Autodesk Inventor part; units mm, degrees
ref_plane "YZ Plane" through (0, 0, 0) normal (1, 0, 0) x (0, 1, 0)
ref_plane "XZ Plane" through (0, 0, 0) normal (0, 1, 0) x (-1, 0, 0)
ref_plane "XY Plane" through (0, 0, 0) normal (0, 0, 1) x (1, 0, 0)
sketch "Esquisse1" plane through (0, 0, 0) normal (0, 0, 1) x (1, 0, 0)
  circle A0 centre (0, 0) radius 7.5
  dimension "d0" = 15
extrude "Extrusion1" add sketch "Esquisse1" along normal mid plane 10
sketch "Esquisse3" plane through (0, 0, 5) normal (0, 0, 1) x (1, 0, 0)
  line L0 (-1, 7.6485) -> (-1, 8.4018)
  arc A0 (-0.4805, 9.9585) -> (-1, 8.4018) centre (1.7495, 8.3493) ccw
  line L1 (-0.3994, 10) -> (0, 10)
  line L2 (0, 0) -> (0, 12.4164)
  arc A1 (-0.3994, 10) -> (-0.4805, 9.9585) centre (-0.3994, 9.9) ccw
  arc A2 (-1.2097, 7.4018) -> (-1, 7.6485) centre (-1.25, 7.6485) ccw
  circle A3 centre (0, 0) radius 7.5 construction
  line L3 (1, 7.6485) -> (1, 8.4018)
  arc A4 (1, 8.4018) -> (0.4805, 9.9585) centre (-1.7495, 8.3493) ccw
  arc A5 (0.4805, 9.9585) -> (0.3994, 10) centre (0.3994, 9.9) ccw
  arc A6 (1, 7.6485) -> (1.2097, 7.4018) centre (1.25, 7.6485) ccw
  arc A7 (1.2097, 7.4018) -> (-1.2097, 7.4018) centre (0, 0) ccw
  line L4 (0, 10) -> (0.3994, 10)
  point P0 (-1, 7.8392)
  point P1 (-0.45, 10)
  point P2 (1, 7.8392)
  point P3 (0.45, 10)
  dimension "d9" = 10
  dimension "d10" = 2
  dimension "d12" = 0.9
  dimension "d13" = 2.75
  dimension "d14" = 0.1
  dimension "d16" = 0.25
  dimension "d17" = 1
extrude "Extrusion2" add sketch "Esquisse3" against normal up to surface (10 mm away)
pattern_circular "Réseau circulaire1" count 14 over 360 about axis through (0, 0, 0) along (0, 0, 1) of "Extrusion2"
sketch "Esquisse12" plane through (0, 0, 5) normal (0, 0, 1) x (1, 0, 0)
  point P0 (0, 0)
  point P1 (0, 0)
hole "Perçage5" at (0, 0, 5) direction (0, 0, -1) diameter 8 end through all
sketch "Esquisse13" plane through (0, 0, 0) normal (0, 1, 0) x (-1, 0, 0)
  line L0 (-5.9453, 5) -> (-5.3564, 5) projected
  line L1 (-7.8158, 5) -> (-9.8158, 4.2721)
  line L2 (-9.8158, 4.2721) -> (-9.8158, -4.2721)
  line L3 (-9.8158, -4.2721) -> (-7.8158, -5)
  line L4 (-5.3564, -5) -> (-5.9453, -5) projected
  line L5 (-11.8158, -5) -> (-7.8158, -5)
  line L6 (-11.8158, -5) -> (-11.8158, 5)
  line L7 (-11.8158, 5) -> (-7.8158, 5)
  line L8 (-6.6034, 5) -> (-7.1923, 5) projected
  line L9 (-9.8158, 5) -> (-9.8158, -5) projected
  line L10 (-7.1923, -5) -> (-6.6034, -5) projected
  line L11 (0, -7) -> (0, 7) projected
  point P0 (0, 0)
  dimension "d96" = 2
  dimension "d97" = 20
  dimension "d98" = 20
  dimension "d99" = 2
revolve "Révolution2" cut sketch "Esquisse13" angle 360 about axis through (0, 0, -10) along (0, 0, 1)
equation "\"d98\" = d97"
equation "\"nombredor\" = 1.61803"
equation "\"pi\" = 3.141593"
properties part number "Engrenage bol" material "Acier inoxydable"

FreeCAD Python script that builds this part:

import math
import FreeCAD as App
import Part
import Sketcher
Q = App.Units.Quantity

doc = App.newDocument("Part")
body = doc.addObject("PartDesign::Body", "Body")

# Sketch on XY plane
sketch1 = doc.addObject("Sketcher::SketchObject", "Sketch")
body.addObject(sketch1)
sketch1.AttachmentSupport = (doc.XY_Plane, [""])
sketch1.MapMode = "FlatFace"
sketch1.addGeometry(Part.Circle(App.Vector(0, 0, 0), App.Vector(0, 0, 1), 8), False)
sketch1.addConstraint([
    Sketcher.Constraint("Coincident", 0, 3, -1, 1),
    Sketcher.Constraint("Diameter", 0, Q("15 mm")),
])
pad1 = doc.addObject("PartDesign::Pad", "Pad")
body.addObject(pad1)
pad1.Profile = sketch1
pad1.Length = 10
pad1.Midplane = True

# Sketch on XY plane
sketch2 = doc.addObject("Sketcher::SketchObject", "Sketch001")
body.addObject(sketch2)
sketch2.AttachmentSupport = (doc.XY_Plane, [""])
sketch2.MapMode = "FlatFace"
sketch2.AttachmentOffset = App.Placement(App.Vector(0, 0, 5), App.Rotation())
sketch2.addGeometry([
    Part.LineSegment(App.Vector(-1, 8.4, 0), App.Vector(-1, 7.65, 0)),  # 0
    Part.ArcOfCircle(Part.Circle(App.Vector(-1.25, 7.65, 0), App.Vector(0, 0, 1), 0.25), math.radians(-81), math.radians(0)),  # 1
    Part.ArcOfCircle(Part.Circle(App.Vector(0, 0, 0), App.Vector(0, 0, 1), 7.5), math.radians(80.72), math.radians(99.28)),  # 2
    Part.ArcOfCircle(Part.Circle(App.Vector(1.25, 7.65, 0), App.Vector(0, 0, 1), 0.25), math.radians(180), math.radians(261)),  # 3
    Part.LineSegment(App.Vector(1, 7.65, 0), App.Vector(1, 8.4, 0)),  # 4
    Part.ArcOfCircle(Part.Circle(App.Vector(-1.75, 8.35, 0), App.Vector(0, 0, 1), 2.75), math.radians(1), math.radians(36)),  # 5
    Part.ArcOfCircle(Part.Circle(App.Vector(0.4, 9.9, 0), App.Vector(0, 0, 1), 0.1), math.radians(36), math.radians(90)),  # 6
    Part.LineSegment(App.Vector(0.4, 10, 0), App.Vector(-0.4, 10, 0)),  # 7
    Part.ArcOfCircle(Part.Circle(App.Vector(-0.4, 9.9, 0), App.Vector(0, 0, 1), 0.1), math.radians(90), math.radians(144)),  # 8
    Part.ArcOfCircle(Part.Circle(App.Vector(1.75, 8.35, 0), App.Vector(0, 0, 1), 2.75), math.radians(144), math.radians(179)),  # 9
], False)
sketch2.addConstraint([
    Sketcher.Constraint("Tangent", 0, 2, 1, 2),
    Sketcher.Constraint("Tangent", 1, 1, 2, 2),
    Sketcher.Constraint("Tangent", 2, 1, 3, 2),
    Sketcher.Constraint("Tangent", 3, 1, 4, 1),
    Sketcher.Constraint("Coincident", 4, 2, 5, 1),
    Sketcher.Constraint("Tangent", 5, 2, 6, 1),
    Sketcher.Constraint("Tangent", 6, 2, 7, 1),
    Sketcher.Constraint("Tangent", 7, 2, 8, 1),
    Sketcher.Constraint("Tangent", 8, 2, 9, 1),
    Sketcher.Constraint("Coincident", 9, 2, 0, 1),
    Sketcher.Constraint("Vertical", 0),
    Sketcher.Constraint("Vertical", 4),
    Sketcher.Constraint("Horizontal", 7),
    Sketcher.Constraint("Coincident", 2, 3, -1, 1),
    Sketcher.Constraint("Equal", 1, 3),
    Sketcher.Constraint("Equal", 6, 8),
    Sketcher.Constraint("Equal", 5, 9),
    Sketcher.Constraint("Symmetric", 5, 3, 9, 3, -2),
    Sketcher.Constraint("Horizontal", 1, 3, 3, 3),
    Sketcher.Constraint("Radius", 6, Q("0.1 mm")),
    Sketcher.Constraint("Radius", 1, Q("0.25 mm")),
    Sketcher.Constraint("Radius", 5, Q("2.75 mm")),
    Sketcher.Constraint("DistanceX", 0, 2, -1, 1, Q("1 mm")),
    Sketcher.Constraint("DistanceY", -1, 1, 6, 2, Q("10 mm")),
    Sketcher.Constraint("DistanceY", 2, 1, 4, 2, Q("1 mm")),
    Sketcher.Constraint("Radius", 2, Q("7.5 mm")),
    Sketcher.Constraint("DistanceX", 5, 3, 8, 3, Q("1.35 mm")),
])
pad2 = doc.addObject("PartDesign::Pad", "Pad001")
body.addObject(pad2)
pad2.Profile = sketch2
pad2.Length = 10
pad2.Reversed = True
doc.recompute()

polarpattern = doc.addObject("PartDesign::PolarPattern", "PolarPattern")
body.addObject(polarpattern)
polarpattern.Originals = [pad2]
polarpattern.Axis = (doc.Z_Axis, [""])
polarpattern.Angle = 360
polarpattern.Occurrences = 14
body.Tip = polarpattern

# Sketch on XY plane
sketch3 = doc.addObject("Sketcher::SketchObject", "Sketch002")
body.addObject(sketch3)
sketch3.AttachmentSupport = (doc.XY_Plane, [""])
sketch3.MapMode = "FlatFace"
sketch3.AttachmentOffset = App.Placement(App.Vector(0, 0, 5), App.Rotation())
sketch3.addGeometry(Part.Circle(App.Vector(0, 0, 0), App.Vector(0, 0, 1), 4), False)
sketch3.addConstraint([
    Sketcher.Constraint("Coincident", 0, 3, -1, 1),
    Sketcher.Constraint("Diameter", 0, Q("8 mm")),
])
doc.recompute()
hole = doc.addObject("PartDesign::Hole", "Hole")
body.addObject(hole)
hole.Profile = sketch3
hole.ThreadType = "None"
hole.Diameter = 8
hole.DepthType = "ThroughAll"

# Sketch on XZ plane
sketch4 = doc.addObject("Sketcher::SketchObject", "Sketch003")
body.addObject(sketch4)
sketch4.AttachmentSupport = (doc.XZ_Plane, [""])
sketch4.MapMode = "FlatFace"
sketch4.addGeometry([
    Part.LineSegment(App.Vector(9.8, 4.3, 0), App.Vector(7.8, 5, 0)),  # 0
    Part.LineSegment(App.Vector(7.8, 5, 0), App.Vector(11.8, 5, 0)),  # 1
    Part.LineSegment(App.Vector(11.8, 5, 0), App.Vector(11.8, -5, 0)),  # 2
    Part.LineSegment(App.Vector(11.8, -5, 0), App.Vector(7.8, -5, 0)),  # 3
    Part.LineSegment(App.Vector(7.8, -5, 0), App.Vector(9.8, -4.3, 0)),  # 4
    Part.LineSegment(App.Vector(9.8, -4.3, 0), App.Vector(9.8, 4.3, 0)),  # 5
], False)
sketch4.addConstraint([
    Sketcher.Constraint("Coincident", 0, 2, 1, 1),
    Sketcher.Constraint("Coincident", 1, 2, 2, 1),
    Sketcher.Constraint("Coincident", 2, 2, 3, 1),
    Sketcher.Constraint("Coincident", 3, 2, 4, 1),
    Sketcher.Constraint("Coincident", 4, 2, 5, 1),
    Sketcher.Constraint("Coincident", 5, 2, 0, 1),
    Sketcher.Constraint("Horizontal", 1),
    Sketcher.Constraint("Vertical", 2),
    Sketcher.Constraint("Horizontal", 3),
    Sketcher.Constraint("Vertical", 5),
    Sketcher.Constraint("Symmetric", 0, 2, 3, 2, -1),
    Sketcher.Constraint("Equal", 0, 4),
    Sketcher.Constraint("DistanceX", 3, 2, 4, 2, Q("2 mm")),
    Sketcher.Constraint("DistanceX", 4, 2, 2, 2, Q("2 mm")),
    Sketcher.Constraint("DistanceY", 2, 2, 2, 1, Q("10 mm")),
    Sketcher.Constraint("Angle", 0, Q("160.001 deg")),
    Sketcher.Constraint("DistanceX", -1, 1, 0, 2, Q("7.8158 mm")),
])
groove = doc.addObject("PartDesign::Groove", "Groove")
body.addObject(groove)
groove.Profile = sketch4
groove.ReferenceAxis = (sketch4, ["V_Axis"])
groove.Angle = 360

doc.recompute()
